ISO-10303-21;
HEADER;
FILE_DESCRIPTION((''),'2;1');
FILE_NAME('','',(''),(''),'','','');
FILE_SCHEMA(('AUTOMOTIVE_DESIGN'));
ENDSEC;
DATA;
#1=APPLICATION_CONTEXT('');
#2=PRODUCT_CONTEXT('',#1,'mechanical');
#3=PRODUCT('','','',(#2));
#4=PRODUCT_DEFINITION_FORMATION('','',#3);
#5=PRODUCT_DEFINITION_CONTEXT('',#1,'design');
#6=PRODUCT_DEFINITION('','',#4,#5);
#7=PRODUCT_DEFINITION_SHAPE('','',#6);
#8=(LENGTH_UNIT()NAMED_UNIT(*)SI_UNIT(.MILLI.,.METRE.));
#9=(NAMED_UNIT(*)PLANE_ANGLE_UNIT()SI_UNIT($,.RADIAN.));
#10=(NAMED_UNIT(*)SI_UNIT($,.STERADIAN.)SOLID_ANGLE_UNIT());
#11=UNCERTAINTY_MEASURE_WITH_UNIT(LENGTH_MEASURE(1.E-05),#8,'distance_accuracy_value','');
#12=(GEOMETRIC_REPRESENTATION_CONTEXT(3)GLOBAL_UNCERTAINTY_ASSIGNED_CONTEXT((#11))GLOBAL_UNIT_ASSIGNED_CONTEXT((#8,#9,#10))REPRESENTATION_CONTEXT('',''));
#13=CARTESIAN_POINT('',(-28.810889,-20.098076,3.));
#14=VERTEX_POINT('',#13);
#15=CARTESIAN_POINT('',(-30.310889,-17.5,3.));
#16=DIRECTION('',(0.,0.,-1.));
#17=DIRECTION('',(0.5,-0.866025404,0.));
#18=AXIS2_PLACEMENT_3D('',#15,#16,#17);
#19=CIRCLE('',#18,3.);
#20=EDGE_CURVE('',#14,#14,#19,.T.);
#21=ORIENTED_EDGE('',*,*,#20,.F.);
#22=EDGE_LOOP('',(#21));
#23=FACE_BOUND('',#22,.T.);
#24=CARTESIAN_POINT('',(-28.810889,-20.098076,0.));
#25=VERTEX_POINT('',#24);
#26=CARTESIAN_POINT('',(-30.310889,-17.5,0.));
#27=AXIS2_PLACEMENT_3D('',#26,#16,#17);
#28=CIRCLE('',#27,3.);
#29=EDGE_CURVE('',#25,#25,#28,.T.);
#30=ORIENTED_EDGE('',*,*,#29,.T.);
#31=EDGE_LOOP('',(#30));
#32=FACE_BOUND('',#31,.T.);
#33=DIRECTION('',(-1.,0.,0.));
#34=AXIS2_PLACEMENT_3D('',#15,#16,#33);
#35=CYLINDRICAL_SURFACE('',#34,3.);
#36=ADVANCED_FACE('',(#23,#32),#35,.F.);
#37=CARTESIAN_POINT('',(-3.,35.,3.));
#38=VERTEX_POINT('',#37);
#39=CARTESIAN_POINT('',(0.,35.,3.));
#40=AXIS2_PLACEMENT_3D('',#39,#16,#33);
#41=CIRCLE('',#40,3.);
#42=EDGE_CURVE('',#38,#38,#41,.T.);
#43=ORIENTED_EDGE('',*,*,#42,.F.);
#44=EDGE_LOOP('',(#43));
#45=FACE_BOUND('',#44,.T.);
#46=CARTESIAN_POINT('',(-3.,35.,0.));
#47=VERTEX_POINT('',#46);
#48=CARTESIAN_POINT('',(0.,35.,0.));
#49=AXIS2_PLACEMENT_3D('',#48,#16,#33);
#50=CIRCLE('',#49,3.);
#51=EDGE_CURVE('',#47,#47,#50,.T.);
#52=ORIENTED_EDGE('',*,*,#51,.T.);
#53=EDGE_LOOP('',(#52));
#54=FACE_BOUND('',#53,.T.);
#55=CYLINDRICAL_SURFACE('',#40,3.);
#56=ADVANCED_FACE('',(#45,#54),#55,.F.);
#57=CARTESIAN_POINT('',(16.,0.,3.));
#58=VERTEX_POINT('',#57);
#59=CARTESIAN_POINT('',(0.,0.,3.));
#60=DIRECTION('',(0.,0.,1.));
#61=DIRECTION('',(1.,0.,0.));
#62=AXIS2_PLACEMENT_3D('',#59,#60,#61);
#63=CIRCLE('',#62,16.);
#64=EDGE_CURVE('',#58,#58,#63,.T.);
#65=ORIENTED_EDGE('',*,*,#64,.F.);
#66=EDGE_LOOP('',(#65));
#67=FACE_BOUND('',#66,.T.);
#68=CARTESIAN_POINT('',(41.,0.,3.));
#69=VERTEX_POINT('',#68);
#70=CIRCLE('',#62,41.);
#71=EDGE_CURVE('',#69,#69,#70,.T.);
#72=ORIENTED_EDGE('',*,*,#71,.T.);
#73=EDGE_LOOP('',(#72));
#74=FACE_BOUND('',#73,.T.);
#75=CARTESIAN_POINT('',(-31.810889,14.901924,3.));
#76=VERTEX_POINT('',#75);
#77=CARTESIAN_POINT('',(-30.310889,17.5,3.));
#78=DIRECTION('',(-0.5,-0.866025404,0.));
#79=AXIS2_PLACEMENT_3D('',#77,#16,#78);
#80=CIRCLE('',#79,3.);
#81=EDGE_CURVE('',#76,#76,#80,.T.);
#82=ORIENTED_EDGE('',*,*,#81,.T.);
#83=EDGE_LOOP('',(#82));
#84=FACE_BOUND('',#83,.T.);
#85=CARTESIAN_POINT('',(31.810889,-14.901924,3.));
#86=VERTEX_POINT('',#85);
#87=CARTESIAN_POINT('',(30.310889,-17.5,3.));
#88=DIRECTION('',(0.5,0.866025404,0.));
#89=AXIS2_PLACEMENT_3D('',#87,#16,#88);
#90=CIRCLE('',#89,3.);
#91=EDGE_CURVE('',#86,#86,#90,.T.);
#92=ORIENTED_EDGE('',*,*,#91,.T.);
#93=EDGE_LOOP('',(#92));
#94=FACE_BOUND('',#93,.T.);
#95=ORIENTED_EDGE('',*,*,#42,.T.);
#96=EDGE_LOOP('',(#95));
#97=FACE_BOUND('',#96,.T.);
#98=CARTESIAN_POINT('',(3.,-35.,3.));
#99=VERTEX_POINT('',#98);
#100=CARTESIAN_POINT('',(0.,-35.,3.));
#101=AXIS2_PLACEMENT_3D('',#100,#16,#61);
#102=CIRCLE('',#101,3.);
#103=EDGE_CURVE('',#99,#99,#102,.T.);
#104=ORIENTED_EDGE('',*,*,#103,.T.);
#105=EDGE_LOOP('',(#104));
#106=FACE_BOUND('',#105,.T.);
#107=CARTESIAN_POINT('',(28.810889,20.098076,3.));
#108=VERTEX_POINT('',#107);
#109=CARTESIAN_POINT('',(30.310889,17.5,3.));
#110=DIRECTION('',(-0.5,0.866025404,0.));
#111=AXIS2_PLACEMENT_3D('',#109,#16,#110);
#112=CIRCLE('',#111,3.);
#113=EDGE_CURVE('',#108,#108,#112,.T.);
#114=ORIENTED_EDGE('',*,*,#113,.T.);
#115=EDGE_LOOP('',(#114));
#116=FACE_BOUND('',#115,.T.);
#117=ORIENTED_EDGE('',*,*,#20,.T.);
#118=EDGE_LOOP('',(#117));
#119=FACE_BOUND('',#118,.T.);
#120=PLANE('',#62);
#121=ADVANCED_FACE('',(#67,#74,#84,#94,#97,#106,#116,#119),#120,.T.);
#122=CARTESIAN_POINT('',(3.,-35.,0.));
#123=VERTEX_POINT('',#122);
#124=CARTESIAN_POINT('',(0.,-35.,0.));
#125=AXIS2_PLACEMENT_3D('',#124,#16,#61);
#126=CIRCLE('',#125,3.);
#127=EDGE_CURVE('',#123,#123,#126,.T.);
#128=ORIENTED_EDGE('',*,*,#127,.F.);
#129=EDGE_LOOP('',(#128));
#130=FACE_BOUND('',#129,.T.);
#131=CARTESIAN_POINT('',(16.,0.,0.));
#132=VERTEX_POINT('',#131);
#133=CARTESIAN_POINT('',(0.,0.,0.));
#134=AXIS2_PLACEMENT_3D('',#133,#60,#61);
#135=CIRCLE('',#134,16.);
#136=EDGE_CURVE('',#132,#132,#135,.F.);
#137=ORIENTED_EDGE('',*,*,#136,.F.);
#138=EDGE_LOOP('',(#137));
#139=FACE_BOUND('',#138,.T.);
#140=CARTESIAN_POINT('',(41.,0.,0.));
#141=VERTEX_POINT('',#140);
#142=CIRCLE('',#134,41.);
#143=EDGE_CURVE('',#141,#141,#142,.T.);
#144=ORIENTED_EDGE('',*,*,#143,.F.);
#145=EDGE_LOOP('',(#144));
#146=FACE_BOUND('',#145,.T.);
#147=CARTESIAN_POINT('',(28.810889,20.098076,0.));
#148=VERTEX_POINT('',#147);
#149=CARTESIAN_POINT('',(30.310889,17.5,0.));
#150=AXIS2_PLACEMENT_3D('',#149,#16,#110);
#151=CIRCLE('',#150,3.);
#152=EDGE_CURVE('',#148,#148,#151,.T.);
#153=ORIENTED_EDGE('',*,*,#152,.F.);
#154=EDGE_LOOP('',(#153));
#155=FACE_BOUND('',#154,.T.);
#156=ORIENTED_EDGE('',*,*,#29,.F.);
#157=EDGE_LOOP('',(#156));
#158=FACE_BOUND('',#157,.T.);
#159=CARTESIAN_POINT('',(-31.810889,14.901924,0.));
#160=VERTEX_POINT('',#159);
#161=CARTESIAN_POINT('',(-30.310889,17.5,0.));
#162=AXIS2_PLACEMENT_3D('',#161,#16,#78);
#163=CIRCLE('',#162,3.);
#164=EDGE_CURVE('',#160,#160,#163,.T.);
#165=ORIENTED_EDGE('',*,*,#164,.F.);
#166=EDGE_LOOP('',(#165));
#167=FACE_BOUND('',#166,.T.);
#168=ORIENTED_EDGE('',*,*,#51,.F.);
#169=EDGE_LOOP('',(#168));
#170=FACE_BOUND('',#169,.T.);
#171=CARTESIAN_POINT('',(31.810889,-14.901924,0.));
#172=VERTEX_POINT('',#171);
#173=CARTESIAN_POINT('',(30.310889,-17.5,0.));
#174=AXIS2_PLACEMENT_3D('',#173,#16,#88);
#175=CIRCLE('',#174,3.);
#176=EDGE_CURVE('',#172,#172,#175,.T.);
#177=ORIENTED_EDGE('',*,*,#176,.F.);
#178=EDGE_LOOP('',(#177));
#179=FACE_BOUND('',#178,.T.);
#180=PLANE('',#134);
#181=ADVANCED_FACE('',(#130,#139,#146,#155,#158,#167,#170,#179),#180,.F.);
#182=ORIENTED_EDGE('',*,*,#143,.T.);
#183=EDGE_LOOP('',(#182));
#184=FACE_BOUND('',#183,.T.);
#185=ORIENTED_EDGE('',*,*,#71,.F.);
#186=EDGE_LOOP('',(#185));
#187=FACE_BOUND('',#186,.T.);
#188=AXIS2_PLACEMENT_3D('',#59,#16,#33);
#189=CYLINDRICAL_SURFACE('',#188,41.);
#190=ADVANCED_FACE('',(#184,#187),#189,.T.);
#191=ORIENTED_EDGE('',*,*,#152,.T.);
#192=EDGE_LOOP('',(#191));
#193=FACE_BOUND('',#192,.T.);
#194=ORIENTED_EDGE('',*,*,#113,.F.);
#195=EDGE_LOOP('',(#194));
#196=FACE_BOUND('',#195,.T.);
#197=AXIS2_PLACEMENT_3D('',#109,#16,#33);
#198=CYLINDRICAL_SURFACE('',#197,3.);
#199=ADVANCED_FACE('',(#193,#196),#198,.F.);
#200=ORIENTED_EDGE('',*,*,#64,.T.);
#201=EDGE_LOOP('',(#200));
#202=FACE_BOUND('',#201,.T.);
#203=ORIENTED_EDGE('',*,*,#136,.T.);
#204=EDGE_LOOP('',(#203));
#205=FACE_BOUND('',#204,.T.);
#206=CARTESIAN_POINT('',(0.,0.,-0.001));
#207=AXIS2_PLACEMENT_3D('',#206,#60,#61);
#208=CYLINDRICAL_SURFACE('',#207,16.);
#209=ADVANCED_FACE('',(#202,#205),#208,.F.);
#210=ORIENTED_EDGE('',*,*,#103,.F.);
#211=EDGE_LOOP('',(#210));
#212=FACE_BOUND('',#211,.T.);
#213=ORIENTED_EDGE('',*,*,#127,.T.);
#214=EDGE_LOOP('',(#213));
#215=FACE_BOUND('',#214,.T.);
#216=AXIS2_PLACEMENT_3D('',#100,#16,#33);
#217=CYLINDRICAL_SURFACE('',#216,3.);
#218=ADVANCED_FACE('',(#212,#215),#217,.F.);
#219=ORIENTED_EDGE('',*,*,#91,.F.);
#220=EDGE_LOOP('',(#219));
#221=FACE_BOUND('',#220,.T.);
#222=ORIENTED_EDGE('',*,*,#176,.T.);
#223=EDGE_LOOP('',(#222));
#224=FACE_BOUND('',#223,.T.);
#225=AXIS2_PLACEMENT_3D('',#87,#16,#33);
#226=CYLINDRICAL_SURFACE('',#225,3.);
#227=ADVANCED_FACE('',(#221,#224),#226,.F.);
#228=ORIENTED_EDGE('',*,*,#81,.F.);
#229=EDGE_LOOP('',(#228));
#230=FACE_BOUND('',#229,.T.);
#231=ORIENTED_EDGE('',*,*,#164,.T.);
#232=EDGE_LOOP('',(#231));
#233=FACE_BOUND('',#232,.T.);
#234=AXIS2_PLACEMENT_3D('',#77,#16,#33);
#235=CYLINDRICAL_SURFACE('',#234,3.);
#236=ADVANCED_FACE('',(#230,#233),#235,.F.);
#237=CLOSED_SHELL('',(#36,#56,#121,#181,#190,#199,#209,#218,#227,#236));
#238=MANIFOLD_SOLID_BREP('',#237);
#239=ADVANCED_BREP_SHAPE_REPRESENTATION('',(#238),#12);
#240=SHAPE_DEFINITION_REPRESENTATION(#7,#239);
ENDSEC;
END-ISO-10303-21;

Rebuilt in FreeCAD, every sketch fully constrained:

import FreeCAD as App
import Part
import Sketcher

doc = App.newDocument("Part")
params = doc.addObject("Spreadsheet::Sheet", "Params")
for row, (alias, value) in enumerate([
    ("sketch1_diameter", "82 mm"),
    ("pad1_length", "3 mm"),
    ("sketch2_diameter", "6 mm"),
    ("sketch3_diameter", "32 mm"),
], start=1):
    params.set(f"A{row}", alias)
    params.set(f"B{row}", "=" + value)
    params.setAlias(f"B{row}", alias)

body = doc.addObject("PartDesign::Body", "Body")

# Sketch on XY plane
sketch1 = doc.addObject("Sketcher::SketchObject", "Sketch")
body.addObject(sketch1)
sketch1.AttachmentSupport = (doc.XY_Plane, [""])
sketch1.MapMode = "FlatFace"
sketch1.addGeometry(Part.Circle(App.Vector(0, 0, 0), App.Vector(0, 0, 1), 41), False)
sketch1.addConstraint([
    Sketcher.Constraint("Coincident", 0, 3, -1, 1),
    Sketcher.Constraint("Diameter", 0, 82.0),
])
sketch1.setExpression("Constraints[1]", "Params.sketch1_diameter")
pad1 = doc.addObject("PartDesign::Pad", "Pad")
body.addObject(pad1)
pad1.Profile = sketch1
pad1.setExpression("Length", "Params.pad1_length")

# Sketch on XY plane
sketch2 = doc.addObject("Sketcher::SketchObject", "Sketch001")
body.addObject(sketch2)
sketch2.AttachmentSupport = (doc.XY_Plane, [""])
sketch2.MapMode = "FlatFace"
sketch2.addGeometry(Part.Circle(App.Vector(0, 35, 0), App.Vector(0, 0, 1), 3), False)
sketch2.addConstraint([
    Sketcher.Constraint("PointOnObject", 0, 3, -2),
    Sketcher.Constraint("Diameter", 0, 6.0),
    Sketcher.Constraint("DistanceY", -1, 1, 0, 3, 35.0),
])
sketch2.setExpression("Constraints[1]", "Params.sketch2_diameter")
pocket1 = doc.addObject("PartDesign::Pocket", "Pocket")
body.addObject(pocket1)
pocket1.Profile = sketch2
pocket1.Type = "ThroughAll"
pocket1.Reversed = True
doc.recompute()

polarpattern = doc.addObject("PartDesign::PolarPattern", "PolarPattern")
body.addObject(polarpattern)
polarpattern.Originals = [pocket1]
polarpattern.Axis = (doc.Z_Axis, [""])
polarpattern.Angle = 360
polarpattern.Occurrences = 6
body.Tip = polarpattern

# Sketch on XY plane
sketch3 = doc.addObject("Sketcher::SketchObject", "Sketch002")
body.addObject(sketch3)
sketch3.AttachmentSupport = (doc.XY_Plane, [""])
sketch3.MapMode = "FlatFace"
sketch3.AttachmentOffset = App.Placement(App.Vector(0, 0, 3), App.Rotation())
sketch3.addGeometry(Part.Circle(App.Vector(0, 0, 0), App.Vector(0, 0, 1), 16), False)
sketch3.addConstraint([
    Sketcher.Constraint("Coincident", 0, 3, -1, 1),
    Sketcher.Constraint("Diameter", 0, 32.0),
])
sketch3.setExpression("Constraints[1]", "Params.sketch3_diameter")
pocket2 = doc.addObject("PartDesign::Pocket", "Pocket001")
body.addObject(pocket2)
pocket2.Profile = sketch3
pocket2.Type = "UpToFirst"

doc.recompute()
